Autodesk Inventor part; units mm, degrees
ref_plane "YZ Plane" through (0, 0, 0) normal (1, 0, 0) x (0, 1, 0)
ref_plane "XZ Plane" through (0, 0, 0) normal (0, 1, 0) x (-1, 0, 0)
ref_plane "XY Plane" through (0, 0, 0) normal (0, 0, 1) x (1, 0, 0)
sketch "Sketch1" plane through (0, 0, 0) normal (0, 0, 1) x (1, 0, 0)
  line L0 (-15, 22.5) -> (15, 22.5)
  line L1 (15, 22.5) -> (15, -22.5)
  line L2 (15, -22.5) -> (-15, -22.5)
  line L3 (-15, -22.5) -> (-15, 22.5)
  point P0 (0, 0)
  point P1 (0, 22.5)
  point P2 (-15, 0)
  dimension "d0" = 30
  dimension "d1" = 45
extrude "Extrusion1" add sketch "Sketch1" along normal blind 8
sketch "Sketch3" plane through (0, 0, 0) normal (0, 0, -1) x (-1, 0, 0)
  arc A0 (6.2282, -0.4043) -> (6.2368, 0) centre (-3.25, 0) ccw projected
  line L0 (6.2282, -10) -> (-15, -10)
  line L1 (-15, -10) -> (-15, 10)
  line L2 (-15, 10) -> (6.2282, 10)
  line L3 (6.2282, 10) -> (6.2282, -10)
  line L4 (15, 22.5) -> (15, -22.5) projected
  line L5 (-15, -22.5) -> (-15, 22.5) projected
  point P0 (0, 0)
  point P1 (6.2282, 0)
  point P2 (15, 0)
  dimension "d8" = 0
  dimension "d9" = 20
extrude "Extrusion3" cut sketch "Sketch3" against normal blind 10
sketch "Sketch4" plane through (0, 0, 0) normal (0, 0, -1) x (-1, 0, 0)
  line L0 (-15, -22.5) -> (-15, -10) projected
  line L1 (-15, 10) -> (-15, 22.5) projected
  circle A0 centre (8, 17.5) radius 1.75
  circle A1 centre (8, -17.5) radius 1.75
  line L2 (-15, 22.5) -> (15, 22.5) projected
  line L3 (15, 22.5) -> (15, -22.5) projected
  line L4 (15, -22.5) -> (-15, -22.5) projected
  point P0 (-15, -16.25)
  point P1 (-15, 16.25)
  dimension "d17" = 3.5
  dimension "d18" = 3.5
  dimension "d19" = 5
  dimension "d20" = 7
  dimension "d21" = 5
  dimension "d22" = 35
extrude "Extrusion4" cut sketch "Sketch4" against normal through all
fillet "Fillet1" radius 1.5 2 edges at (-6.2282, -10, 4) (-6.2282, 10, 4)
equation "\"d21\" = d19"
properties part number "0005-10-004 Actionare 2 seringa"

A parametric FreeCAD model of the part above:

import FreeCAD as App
import Part
import Sketcher
from FreeCAD import Vector


def edges_at(feature, points):
    """Names of the edges that pass closest to the given points."""
    edges = feature.Shape.Edges
    near = lambda p: min(range(len(edges)), key=lambda i: edges[i].distToShape(Part.Vertex(*p))[0])
    return sorted({f"Edge{near(p) + 1}" for p in points})


def add_polygon(sketch, points):
    """Adds a closed chain of lines whose ends are joined by coincident constraints."""
    first, n = sketch.GeometryCount, len(points)
    for a, b in zip(points, points[1:] + points[:1]):
        sketch.addGeometry(Part.LineSegment(App.Vector(*a, 0), App.Vector(*b, 0)), False)
    for i in range(n):
        sketch.addConstraint(Sketcher.Constraint("Coincident", first + i, 2, first + (i + 1) % n, 1))

doc = App.newDocument("Part")
body = doc.addObject("PartDesign::Body", "Body")

# Sketch on XY plane
sketch1 = body.newObject("Sketcher::SketchObject", "Sketch")
sketch1.AttachmentSupport = (doc.getObject("XY_Plane"), [""])
sketch1.MapMode = "FlatFace"
add_polygon(sketch1, [(15, 22.5), (-15, 22.5), (-15, -22.5), (15, -22.5)])  # lines 0-3
sketch1.addConstraint([
    Sketcher.Constraint("Horizontal", 0),
    Sketcher.Constraint("Vertical", 1),
    Sketcher.Constraint("Horizontal", 2),
    Sketcher.Constraint("Vertical", 3),
    Sketcher.Constraint("Symmetric", 0, 2, 2, 2, -1, 1),
    Sketcher.Constraint("DistanceX", 0, 2, 0, 1, 30.0),
    Sketcher.Constraint("DistanceY", 1, 2, 1, 1, 45.0),
])
pad1 = body.newObject("PartDesign::Pad", "Pad")
pad1.Profile = sketch1
pad1.Length = 8

# Sketch on XY plane
sketch2 = body.newObject("Sketcher::SketchObject", "Sketch001")
sketch2.AttachmentSupport = (doc.getObject("XY_Plane"), [""])
sketch2.MapMode = "FlatFace"
add_polygon(sketch2, [(15, -10), (-6.2282, -10), (-6.2282, 10), (15, 10)])  # lines 0-3
sketch2.addConstraint([
    Sketcher.Constraint("Horizontal", 0),
    Sketcher.Constraint("Vertical", 1),
    Sketcher.Constraint("Horizontal", 2),
    Sketcher.Constraint("Vertical", 3),
    Sketcher.Constraint("DistanceY", 1, 1, 1, 2, 20.0),
    Sketcher.Constraint("DistanceY", 0, 2, -1, 1, 10.0),
    Sketcher.Constraint("DistanceX", -1, 1, 2, 2, 15.0),
    Sketcher.Constraint("DistanceX", 0, 2, 0, 1, 21.2282),
])
pocket1 = body.newObject("PartDesign::Pocket", "Pocket")
pocket1.Profile = sketch2
pocket1.Length = 10
pocket1.Reversed = True

# Sketch on XY plane
sketch3 = body.newObject("Sketcher::SketchObject", "Sketch002")
sketch3.AttachmentSupport = (doc.getObject("XY_Plane"), [""])
sketch3.MapMode = "FlatFace"
sketch3.addGeometry([
    Part.Circle(Vector(-8, 17.5, 0), Vector(0, 0, 1), 1.75),
    Part.Circle(Vector(-8, -17.5, 0), Vector(0, 0, 1), 1.75),
], False)
sketch3.addConstraint([
    Sketcher.Constraint("Equal", 0, 1),
    Sketcher.Constraint("Symmetric", 0, 3, 1, 3, -1),
    Sketcher.Constraint("Diameter", 0, 3.5),
    Sketcher.Constraint("DistanceY", 1, 3, 0, 3, 35.0),
    Sketcher.Constraint("DistanceX", 0, 3, -1, 1, 8.0),
])
pocket2 = body.newObject("PartDesign::Pocket", "Pocket001")
pocket2.Profile = sketch3
pocket2.Type = "ThroughAll"
pocket2.Reversed = True
doc.recompute()

fillet = body.newObject("PartDesign::Fillet", "Fillet")
fillet.Base = (pocket2, edges_at(pocket2, [(-6.228, -10, 4), (-6.228, 10, 4)]))
fillet.Radius = 1.5

doc.recompute()
